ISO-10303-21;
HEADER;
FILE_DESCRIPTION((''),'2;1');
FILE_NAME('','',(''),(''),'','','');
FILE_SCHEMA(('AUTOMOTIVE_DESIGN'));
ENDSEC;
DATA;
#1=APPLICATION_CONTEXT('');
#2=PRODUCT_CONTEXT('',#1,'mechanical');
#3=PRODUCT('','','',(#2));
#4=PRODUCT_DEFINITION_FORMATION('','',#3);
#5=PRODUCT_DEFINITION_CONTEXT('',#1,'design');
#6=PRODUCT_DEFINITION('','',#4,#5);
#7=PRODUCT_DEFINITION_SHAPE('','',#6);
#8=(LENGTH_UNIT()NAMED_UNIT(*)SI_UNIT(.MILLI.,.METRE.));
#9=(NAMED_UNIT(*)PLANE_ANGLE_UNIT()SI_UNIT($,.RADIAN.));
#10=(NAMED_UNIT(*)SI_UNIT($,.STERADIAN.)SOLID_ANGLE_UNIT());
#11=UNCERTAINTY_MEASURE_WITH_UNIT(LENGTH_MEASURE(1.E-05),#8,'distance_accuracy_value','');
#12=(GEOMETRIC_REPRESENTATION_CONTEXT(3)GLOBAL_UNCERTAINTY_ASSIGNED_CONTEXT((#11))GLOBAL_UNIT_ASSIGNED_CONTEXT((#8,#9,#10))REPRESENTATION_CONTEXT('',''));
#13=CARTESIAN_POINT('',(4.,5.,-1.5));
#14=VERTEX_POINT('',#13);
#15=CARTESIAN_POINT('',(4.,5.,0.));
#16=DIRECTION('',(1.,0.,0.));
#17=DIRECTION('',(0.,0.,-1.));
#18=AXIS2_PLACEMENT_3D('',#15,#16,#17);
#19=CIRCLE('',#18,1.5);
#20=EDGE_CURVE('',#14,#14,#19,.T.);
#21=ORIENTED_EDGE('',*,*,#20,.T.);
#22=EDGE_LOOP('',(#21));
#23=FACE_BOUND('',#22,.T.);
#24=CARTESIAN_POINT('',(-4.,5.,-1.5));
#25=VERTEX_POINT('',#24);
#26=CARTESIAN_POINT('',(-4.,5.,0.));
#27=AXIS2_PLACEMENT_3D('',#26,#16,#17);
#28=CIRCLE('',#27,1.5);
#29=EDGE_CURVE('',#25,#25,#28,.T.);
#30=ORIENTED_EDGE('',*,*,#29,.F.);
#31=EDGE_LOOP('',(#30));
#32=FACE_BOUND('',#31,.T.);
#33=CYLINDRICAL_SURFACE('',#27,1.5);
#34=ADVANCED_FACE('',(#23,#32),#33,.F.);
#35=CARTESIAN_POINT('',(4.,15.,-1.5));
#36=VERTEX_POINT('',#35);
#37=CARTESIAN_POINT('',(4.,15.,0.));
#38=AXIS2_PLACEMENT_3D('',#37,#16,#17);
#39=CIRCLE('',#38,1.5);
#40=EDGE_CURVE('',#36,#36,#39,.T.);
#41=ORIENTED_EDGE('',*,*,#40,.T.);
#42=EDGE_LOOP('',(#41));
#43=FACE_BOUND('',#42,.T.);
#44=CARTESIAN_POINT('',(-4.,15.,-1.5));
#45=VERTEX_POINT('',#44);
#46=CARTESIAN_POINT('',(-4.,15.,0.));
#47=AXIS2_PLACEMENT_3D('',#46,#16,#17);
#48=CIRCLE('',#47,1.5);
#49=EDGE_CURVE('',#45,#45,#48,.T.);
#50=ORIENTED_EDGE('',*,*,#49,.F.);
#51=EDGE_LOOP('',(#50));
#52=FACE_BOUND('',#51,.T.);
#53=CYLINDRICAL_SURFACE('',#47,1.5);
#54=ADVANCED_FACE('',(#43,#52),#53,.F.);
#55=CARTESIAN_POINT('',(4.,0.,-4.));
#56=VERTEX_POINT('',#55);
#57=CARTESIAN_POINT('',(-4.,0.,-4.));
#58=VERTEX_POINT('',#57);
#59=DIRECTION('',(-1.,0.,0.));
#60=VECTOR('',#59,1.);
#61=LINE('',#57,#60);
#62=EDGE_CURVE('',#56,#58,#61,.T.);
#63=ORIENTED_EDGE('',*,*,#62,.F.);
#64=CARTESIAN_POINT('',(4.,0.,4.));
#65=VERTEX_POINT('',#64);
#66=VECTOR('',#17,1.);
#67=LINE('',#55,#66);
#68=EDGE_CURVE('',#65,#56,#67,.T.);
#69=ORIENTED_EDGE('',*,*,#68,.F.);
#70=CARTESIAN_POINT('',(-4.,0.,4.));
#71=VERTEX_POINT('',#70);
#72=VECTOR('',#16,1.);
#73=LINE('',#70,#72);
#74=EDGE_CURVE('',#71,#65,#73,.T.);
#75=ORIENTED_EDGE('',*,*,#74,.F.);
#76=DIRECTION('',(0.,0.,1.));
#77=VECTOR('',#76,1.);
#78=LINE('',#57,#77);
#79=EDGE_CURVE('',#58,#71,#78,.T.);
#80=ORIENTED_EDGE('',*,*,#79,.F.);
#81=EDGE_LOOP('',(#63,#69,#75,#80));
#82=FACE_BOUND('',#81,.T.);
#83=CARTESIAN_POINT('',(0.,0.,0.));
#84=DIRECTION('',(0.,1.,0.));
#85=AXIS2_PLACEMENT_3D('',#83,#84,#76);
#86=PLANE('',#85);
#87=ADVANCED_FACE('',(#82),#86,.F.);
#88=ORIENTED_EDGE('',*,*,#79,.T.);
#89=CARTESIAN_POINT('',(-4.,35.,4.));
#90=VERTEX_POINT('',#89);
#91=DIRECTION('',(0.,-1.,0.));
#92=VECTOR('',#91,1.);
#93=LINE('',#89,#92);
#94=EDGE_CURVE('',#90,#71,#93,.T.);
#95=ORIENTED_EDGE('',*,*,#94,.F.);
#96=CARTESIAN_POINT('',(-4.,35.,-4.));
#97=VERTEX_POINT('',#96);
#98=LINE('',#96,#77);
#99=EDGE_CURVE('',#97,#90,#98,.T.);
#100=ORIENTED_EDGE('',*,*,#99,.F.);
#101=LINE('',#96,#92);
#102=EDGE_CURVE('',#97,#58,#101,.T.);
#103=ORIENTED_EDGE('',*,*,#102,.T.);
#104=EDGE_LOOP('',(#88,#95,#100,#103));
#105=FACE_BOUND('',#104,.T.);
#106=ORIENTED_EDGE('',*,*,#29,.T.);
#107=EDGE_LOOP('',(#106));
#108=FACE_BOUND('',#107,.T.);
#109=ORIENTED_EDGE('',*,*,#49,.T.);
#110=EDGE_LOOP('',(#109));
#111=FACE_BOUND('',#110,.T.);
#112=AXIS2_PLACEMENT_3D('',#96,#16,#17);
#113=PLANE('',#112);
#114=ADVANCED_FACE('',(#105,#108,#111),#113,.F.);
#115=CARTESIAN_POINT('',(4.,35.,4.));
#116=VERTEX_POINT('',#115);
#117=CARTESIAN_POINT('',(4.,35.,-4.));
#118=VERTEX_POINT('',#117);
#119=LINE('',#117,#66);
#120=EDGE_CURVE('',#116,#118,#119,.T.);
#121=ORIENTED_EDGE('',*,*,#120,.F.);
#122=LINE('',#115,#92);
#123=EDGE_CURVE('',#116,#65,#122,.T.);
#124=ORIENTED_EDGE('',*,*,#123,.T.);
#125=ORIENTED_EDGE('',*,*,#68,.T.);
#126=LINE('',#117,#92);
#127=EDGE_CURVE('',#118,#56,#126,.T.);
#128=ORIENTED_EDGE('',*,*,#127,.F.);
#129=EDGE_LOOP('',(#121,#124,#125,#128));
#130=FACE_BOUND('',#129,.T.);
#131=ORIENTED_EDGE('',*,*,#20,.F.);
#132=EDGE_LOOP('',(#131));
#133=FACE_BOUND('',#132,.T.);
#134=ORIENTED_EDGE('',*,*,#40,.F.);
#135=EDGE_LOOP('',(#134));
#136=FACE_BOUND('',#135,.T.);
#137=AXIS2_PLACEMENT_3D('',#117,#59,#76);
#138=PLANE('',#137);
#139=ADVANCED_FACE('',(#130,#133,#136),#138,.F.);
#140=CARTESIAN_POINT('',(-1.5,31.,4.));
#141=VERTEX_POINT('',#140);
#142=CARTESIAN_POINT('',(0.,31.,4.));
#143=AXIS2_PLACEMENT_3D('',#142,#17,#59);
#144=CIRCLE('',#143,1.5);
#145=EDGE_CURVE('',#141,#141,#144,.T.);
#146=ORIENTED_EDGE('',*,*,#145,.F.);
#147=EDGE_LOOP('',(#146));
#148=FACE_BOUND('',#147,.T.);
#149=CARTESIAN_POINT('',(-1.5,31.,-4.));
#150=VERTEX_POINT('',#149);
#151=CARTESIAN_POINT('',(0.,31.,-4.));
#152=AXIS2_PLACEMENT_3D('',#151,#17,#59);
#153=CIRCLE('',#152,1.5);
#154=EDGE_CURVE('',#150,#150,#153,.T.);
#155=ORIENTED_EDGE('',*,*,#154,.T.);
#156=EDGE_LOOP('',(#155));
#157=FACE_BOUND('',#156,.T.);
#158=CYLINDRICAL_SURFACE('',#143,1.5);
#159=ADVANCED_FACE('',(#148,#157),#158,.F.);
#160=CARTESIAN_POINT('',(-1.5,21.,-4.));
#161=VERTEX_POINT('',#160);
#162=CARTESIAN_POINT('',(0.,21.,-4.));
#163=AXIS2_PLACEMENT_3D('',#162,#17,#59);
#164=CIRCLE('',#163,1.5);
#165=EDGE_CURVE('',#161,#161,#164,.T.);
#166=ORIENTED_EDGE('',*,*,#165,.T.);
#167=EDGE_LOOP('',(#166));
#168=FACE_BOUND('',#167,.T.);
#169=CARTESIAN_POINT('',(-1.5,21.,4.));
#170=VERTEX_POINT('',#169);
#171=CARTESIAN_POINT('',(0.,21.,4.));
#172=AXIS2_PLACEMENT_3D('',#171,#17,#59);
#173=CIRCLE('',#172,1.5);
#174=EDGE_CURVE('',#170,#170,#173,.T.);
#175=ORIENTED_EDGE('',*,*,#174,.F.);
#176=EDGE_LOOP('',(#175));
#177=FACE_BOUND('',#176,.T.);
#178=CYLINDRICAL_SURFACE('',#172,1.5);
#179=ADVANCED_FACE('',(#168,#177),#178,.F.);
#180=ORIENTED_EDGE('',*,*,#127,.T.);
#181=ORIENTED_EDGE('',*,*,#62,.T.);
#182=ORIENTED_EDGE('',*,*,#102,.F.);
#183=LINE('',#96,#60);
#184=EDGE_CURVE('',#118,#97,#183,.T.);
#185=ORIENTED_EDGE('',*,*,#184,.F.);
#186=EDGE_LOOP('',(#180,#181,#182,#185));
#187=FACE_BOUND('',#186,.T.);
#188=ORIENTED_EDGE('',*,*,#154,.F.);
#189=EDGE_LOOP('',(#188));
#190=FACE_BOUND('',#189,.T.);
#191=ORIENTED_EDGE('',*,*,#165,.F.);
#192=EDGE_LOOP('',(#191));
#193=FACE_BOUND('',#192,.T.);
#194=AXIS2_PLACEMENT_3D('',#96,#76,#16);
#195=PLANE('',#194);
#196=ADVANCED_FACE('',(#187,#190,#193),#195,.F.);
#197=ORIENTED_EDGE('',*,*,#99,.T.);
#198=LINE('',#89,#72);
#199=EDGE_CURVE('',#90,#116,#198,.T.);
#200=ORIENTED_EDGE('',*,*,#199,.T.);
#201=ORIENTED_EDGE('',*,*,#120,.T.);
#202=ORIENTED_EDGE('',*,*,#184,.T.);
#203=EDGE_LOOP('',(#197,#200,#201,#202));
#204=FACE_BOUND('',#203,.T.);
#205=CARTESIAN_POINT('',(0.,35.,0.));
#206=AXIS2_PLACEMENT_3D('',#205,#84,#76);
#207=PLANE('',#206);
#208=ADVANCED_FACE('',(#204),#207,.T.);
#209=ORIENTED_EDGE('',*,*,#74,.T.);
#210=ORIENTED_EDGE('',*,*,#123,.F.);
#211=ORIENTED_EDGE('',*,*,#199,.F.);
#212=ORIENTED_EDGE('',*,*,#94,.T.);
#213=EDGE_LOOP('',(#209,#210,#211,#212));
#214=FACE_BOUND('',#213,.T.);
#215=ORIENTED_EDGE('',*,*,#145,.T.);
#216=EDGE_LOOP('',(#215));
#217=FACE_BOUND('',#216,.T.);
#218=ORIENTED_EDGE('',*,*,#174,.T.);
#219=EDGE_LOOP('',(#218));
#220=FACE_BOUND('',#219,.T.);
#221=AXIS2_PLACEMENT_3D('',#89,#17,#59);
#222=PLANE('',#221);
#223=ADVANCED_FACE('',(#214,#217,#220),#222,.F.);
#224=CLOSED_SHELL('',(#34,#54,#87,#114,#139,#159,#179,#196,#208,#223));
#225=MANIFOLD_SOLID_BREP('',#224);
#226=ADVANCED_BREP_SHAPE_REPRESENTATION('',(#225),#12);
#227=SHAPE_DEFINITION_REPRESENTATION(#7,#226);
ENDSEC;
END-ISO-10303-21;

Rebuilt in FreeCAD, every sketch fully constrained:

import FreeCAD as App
import Part
import Sketcher
Q = App.Units.Quantity


def add_polygon(sketch, points):
    """Adds a closed chain of lines whose ends are joined by coincident constraints."""
    first, n = sketch.GeometryCount, len(points)
    for a, b in zip(points, points[1:] + points[:1]):
        sketch.addGeometry(Part.LineSegment(App.Vector(*a, 0), App.Vector(*b, 0)), False)
    for i in range(n):
        sketch.addConstraint(Sketcher.Constraint("Coincident", first + i, 2, first + (i + 1) % n, 1))

doc = App.newDocument("Part")
body = doc.addObject("PartDesign::Body", "Body")

sketch1 = doc.addObject("Sketcher::SketchObject", "Sketch")
body.addObject(sketch1)
sketch1.AttachmentSupport = (doc.XZ_Plane, [""])
sketch1.MapMode = "FlatFace"
add_polygon(sketch1, [(-4, -4), (-4, 4), (4, 4), (4, -4)])
sketch1.addConstraint([
    Sketcher.Constraint("Vertical", 0),
    Sketcher.Constraint("Horizontal", 1),
    Sketcher.Constraint("Vertical", 2),
    Sketcher.Constraint("Horizontal", 3),
    Sketcher.Constraint("Symmetric", 0, 2, 2, 2, -1, 1),
    Sketcher.Constraint("Equal", 3, 0),
    Sketcher.Constraint("DistanceX", 1, 1, 1, 2, Q("8 mm")),
])
pad1 = doc.addObject("PartDesign::Pad", "Pad")
body.addObject(pad1)
pad1.Profile = sketch1
pad1.Length = 35
pad1.Reversed = True

sketch2 = doc.addObject("Sketcher::SketchObject", "Sketch001")
body.addObject(sketch2)
sketch2.AttachmentSupport = (doc.XY_Plane, [""])
sketch2.MapMode = "FlatFace"
sketch2.AttachmentOffset = App.Placement(App.Vector(0, 0, -4), App.Rotation())
sketch2.addGeometry([
    Part.Circle(App.Vector(0, 31, 0), App.Vector(0, 0, 1), 1.5),
    Part.Circle(App.Vector(0, 21, 0), App.Vector(0, 0, 1), 1.5),
], False)
sketch2.addConstraint([
    Sketcher.Constraint("Equal", 0, 1),
    Sketcher.Constraint("PointOnObject", 0, 3, -2),
    Sketcher.Constraint("PointOnObject", 1, 3, -2),
    Sketcher.Constraint("Diameter", 0, Q("3 mm")),
    Sketcher.Constraint("DistanceY", -1, 1, 0, 3, Q("31 mm")),
    Sketcher.Constraint("DistanceY", -1, 1, 1, 3, Q("21 mm")),
])
pocket1 = doc.addObject("PartDesign::Pocket", "Pocket")
body.addObject(pocket1)
pocket1.Profile = sketch2
pocket1.Type = "ThroughAll"
pocket1.Reversed = True

sketch3 = doc.addObject("Sketcher::SketchObject", "Sketch002")
body.addObject(sketch3)
sketch3.AttachmentSupport = (doc.YZ_Plane, [""])
sketch3.MapMode = "FlatFace"
sketch3.AttachmentOffset = App.Placement(App.Vector(0, 0, 4), App.Rotation())
sketch3.addGeometry([
    Part.Circle(App.Vector(15, 0, 0), App.Vector(0, 0, 1), 1.5),
    Part.Circle(App.Vector(5, 0, 0), App.Vector(0, 0, 1), 1.5),
], False)
sketch3.addConstraint([
    Sketcher.Constraint("Equal", 0, 1),
    Sketcher.Constraint("PointOnObject", 0, 3, -1),
    Sketcher.Constraint("PointOnObject", 1, 3, -1),
    Sketcher.Constraint("Diameter", 0, Q("3 mm")),
    Sketcher.Constraint("DistanceX", -1, 1, 0, 3, Q("15 mm")),
    Sketcher.Constraint("DistanceX", -1, 1, 1, 3, Q("5 mm")),
])
pocket2 = doc.addObject("PartDesign::Pocket", "Pocket001")
body.addObject(pocket2)
pocket2.Profile = sketch3
pocket2.Type = "ThroughAll"

doc.recompute()
